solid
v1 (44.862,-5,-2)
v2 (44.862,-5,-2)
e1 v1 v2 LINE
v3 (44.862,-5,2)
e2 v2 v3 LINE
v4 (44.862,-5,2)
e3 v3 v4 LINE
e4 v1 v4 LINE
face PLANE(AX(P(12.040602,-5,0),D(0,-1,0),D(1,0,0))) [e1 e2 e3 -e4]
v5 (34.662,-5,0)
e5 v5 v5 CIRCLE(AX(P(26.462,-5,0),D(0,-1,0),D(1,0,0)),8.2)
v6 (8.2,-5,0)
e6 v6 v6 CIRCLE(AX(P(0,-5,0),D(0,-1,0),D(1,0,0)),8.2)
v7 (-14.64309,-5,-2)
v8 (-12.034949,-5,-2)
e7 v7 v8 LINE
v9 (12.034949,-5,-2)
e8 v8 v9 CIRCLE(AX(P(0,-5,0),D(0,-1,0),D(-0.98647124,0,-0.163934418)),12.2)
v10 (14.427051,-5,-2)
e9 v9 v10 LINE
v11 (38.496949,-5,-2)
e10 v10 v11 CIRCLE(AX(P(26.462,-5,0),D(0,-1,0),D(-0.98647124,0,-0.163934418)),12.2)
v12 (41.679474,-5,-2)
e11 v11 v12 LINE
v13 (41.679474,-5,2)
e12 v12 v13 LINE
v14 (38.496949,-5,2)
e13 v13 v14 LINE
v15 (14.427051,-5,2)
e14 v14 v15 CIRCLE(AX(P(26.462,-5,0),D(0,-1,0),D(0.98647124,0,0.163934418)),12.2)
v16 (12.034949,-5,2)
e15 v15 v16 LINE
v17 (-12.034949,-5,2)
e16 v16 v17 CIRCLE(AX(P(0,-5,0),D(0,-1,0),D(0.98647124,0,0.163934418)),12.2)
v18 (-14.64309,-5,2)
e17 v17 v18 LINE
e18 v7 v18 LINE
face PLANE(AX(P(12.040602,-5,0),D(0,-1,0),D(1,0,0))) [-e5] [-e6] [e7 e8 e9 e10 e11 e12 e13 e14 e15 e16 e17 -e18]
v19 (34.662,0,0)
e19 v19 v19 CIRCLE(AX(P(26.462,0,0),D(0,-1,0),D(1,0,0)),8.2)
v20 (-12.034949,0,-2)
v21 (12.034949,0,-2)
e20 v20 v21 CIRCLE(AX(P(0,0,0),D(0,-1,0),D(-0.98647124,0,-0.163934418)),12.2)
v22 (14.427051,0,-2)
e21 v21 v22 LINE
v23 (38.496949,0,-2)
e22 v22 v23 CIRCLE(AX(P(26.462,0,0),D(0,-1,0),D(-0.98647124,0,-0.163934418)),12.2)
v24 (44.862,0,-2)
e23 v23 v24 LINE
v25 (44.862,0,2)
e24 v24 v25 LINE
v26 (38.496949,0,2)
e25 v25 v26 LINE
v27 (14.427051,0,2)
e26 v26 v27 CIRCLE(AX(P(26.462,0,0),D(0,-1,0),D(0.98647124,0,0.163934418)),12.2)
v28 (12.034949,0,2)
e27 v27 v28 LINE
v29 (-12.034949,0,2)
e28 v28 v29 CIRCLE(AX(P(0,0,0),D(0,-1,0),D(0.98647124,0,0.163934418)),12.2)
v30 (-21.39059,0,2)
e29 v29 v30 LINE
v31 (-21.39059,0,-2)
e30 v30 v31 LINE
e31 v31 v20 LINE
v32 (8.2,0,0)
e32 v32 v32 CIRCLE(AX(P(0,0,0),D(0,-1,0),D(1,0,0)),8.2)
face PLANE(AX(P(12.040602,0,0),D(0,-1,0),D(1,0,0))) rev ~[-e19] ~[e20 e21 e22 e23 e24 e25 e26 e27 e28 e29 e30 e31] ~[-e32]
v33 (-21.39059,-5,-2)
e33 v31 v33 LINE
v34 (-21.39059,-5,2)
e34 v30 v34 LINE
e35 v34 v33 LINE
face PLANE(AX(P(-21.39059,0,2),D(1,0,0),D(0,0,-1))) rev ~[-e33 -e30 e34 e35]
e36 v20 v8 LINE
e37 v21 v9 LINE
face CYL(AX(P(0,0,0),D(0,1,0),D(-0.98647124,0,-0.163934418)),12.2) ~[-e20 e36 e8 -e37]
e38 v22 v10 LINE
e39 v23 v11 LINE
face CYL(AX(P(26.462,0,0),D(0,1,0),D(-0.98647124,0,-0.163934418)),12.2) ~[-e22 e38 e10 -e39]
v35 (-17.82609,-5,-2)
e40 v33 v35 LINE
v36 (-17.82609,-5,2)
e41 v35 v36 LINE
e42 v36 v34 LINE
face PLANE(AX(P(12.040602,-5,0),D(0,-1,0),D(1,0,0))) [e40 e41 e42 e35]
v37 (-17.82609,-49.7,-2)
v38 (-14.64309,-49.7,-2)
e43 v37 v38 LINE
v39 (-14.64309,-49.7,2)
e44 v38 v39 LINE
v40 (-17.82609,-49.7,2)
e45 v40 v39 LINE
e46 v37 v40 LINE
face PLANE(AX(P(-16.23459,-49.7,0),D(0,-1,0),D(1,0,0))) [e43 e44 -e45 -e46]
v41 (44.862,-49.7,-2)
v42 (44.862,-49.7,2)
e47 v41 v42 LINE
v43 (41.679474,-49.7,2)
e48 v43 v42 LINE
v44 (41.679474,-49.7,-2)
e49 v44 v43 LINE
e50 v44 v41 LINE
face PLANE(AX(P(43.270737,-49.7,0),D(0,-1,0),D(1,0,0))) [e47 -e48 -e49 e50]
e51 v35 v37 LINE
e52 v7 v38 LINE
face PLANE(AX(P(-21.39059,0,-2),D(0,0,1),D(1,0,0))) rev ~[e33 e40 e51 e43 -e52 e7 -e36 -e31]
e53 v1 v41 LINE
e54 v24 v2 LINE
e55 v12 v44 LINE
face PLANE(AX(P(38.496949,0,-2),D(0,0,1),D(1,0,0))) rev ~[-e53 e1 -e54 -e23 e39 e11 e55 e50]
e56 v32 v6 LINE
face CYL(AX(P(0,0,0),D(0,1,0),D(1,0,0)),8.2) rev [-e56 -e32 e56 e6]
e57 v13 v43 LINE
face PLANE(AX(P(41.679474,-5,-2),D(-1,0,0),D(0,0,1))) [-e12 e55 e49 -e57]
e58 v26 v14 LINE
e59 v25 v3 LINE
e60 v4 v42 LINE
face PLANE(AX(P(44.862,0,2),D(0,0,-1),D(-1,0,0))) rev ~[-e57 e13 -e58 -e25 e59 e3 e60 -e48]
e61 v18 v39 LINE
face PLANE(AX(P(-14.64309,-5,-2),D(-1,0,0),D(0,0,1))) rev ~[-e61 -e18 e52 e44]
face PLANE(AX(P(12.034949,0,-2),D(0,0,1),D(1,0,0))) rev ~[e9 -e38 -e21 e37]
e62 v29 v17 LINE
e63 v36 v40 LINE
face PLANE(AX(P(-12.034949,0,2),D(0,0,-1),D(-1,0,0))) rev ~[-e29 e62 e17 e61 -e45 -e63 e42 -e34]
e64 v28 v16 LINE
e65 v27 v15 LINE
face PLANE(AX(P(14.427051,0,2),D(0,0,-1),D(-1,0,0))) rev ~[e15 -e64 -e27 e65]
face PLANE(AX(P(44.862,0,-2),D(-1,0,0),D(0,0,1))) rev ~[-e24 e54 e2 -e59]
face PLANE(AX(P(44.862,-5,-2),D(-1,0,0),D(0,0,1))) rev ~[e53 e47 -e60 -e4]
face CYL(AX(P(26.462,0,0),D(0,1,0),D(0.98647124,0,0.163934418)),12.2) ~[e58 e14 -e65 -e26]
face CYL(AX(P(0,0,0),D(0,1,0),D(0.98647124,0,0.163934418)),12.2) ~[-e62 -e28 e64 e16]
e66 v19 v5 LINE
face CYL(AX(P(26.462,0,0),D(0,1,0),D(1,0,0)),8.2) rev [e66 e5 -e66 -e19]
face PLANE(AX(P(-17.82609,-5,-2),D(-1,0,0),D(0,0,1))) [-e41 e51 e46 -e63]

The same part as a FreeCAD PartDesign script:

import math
import FreeCAD as App
import Part
import Sketcher
Q = App.Units.Quantity

doc = App.newDocument("Part")
body = doc.addObject("PartDesign::Body", "Body")

# Sketch on XZ plane
sketch1 = body.newObject("Sketcher::SketchObject", "Sketch")
sketch1.AttachmentSupport = (doc.getObject("XZ_Plane"), [""])
sketch1.MapMode = "FlatFace"
sketch1.addGeometry([
    Part.LineSegment(App.Vector(-21.39059, -2, 0), App.Vector(-12.034949, -2, 0)),  # 0
    Part.ArcOfCircle(Part.Circle(App.Vector(0, 0, 0), App.Vector(0, 0, 1), 12.2), math.radians(-170.564662), math.radians(-9.435338)),  # 1
    Part.LineSegment(App.Vector(12.034949, -2, 0), App.Vector(14.427051, -2, 0)),  # 2
    Part.ArcOfCircle(Part.Circle(App.Vector(26.462, 0, 0), App.Vector(0, 0, 1), 12.2), math.radians(-170.564662), math.radians(-9.435338)),  # 3
    Part.LineSegment(App.Vector(38.496949, -2, 0), App.Vector(44.862, -2, 0)),  # 4
    Part.LineSegment(App.Vector(44.862, -2, 0), App.Vector(44.862, 2, 0)),  # 5
    Part.LineSegment(App.Vector(44.862, 2, 0), App.Vector(38.496949, 2, 0)),  # 6
    Part.ArcOfCircle(Part.Circle(App.Vector(26.462, 0, 0), App.Vector(0, 0, 1), 12.2), math.radians(9.435338), math.radians(170.564662)),  # 7
    Part.LineSegment(App.Vector(14.427051, 2, 0), App.Vector(12.034949, 2, 0)),  # 8
    Part.ArcOfCircle(Part.Circle(App.Vector(0, 0, 0), App.Vector(0, 0, 1), 12.2), math.radians(9.435338), math.radians(170.564662)),  # 9
    Part.LineSegment(App.Vector(-12.034949, 2, 0), App.Vector(-21.39059, 2, 0)),  # 10
    Part.LineSegment(App.Vector(-21.39059, 2, 0), App.Vector(-21.39059, -2, 0)),  # 11
    Part.Circle(App.Vector(0, 0, 0), App.Vector(0, 0, 1), 8.2),  # 12
    Part.Circle(App.Vector(26.462, 0, 0), App.Vector(0, 0, 1), 8.2),  # 13
], False)
sketch1.addConstraint([
    Sketcher.Constraint("Coincident", 0, 2, 1, 1),
    Sketcher.Constraint("Coincident", 1, 2, 2, 1),
    Sketcher.Constraint("Coincident", 2, 2, 3, 1),
    Sketcher.Constraint("Coincident", 3, 2, 4, 1),
    Sketcher.Constraint("Coincident", 4, 2, 5, 1),
    Sketcher.Constraint("Coincident", 5, 2, 6, 1),
    Sketcher.Constraint("Coincident", 6, 2, 7, 1),
    Sketcher.Constraint("Coincident", 7, 2, 8, 1),
    Sketcher.Constraint("Coincident", 8, 2, 9, 1),
    Sketcher.Constraint("Coincident", 9, 2, 10, 1),
    Sketcher.Constraint("Coincident", 10, 2, 11, 1),
    Sketcher.Constraint("Coincident", 11, 2, 0, 1),
    Sketcher.Constraint("Horizontal", 0),
    Sketcher.Constraint("Horizontal", 2),
    Sketcher.Constraint("Horizontal", 4),
    Sketcher.Constraint("Vertical", 5),
    Sketcher.Constraint("Horizontal", 6),
    Sketcher.Constraint("Horizontal", 8),
    Sketcher.Constraint("Horizontal", 10),
    Sketcher.Constraint("Vertical", 11),
    Sketcher.Constraint("Coincident", 1, 3, -1, 1),
    Sketcher.Constraint("Coincident", 9, 3, -1, 1),
    Sketcher.Constraint("Coincident", 12, 3, -1, 1),
    Sketcher.Constraint("Coincident", 7, 3, 3, 3),
    Sketcher.Constraint("Coincident", 13, 3, 3, 3),
    Sketcher.Constraint("Equal", 1, 3),
    Sketcher.Constraint("Equal", 3, 7),
    Sketcher.Constraint("Equal", 7, 9),
    Sketcher.Constraint("Equal", 12, 13),
    Sketcher.Constraint("Symmetric", 3, 2, 6, 2, -1),
    Sketcher.Constraint("Horizontal", 0, 2, 1, 2),
    Sketcher.Constraint("Horizontal", 2, 2, 3, 2),
    Sketcher.Constraint("Horizontal", 6, 2, 7, 2),
    Sketcher.Constraint("Horizontal", 8, 2, 9, 2),
    Sketcher.Constraint("Diameter", 12, Q("16.4 mm")),
    Sketcher.Constraint("Radius", 1, Q("12.2 mm")),
    Sketcher.Constraint("DistanceY", 5, 1, 5, 2, Q("4 mm")),
    Sketcher.Constraint("DistanceX", 3, 3, 4, 2, Q("18.4 mm")),
    Sketcher.Constraint("DistanceX", -1, 1, 3, 3, Q("26.462 mm")),
    Sketcher.Constraint("DistanceX", 0, 1, 0, 2, Q("9.355641 mm")),
])
pad1 = body.newObject("PartDesign::Pad", "Pad")
pad1.Profile = sketch1
pad1.Length = 5

# Sketch on XZ plane
sketch2 = body.newObject("Sketcher::SketchObject", "Sketch001")
sketch2.AttachmentSupport = (doc.getObject("XZ_Plane"), [""])
sketch2.MapMode = "FlatFace"
sketch2.AttachmentOffset = App.Placement(App.Vector(0, 0, 5), App.Rotation())
sketch2.addGeometry([
    Part.LineSegment(App.Vector(-17.82609, 2, 0), App.Vector(-17.82609, -2, 0)),  # 0
    Part.LineSegment(App.Vector(-17.82609, -2, 0), App.Vector(-14.64309, -2, 0)),  # 1
    Part.LineSegment(App.Vector(-14.64309, -2, 0), App.Vector(-14.64309, 2, 0)),  # 2
    Part.LineSegment(App.Vector(-14.64309, 2, 0), App.Vector(-17.82609, 2, 0)),  # 3
    Part.LineSegment(App.Vector(41.679474, 2, 0), App.Vector(41.679474, -2, 0)),  # 4
    Part.LineSegment(App.Vector(41.679474, -2, 0), App.Vector(44.862, -2, 0)),  # 5
    Part.LineSegment(App.Vector(44.862, -2, 0), App.Vector(44.862, 2, 0)),  # 6
    Part.LineSegment(App.Vector(44.862, 2, 0), App.Vector(41.679474, 2, 0)),  # 7
], False)
sketch2.addConstraint([
    Sketcher.Constraint("Coincident", 0, 2, 1, 1),
    Sketcher.Constraint("Coincident", 1, 2, 2, 1),
    Sketcher.Constraint("Coincident", 2, 2, 3, 1),
    Sketcher.Constraint("Coincident", 3, 2, 0, 1),
    Sketcher.Constraint("Coincident", 4, 2, 5, 1),
    Sketcher.Constraint("Coincident", 5, 2, 6, 1),
    Sketcher.Constraint("Coincident", 6, 2, 7, 1),
    Sketcher.Constraint("Coincident", 7, 2, 4, 1),
    Sketcher.Constraint("Vertical", 0),
    Sketcher.Constraint("Horizontal", 1),
    Sketcher.Constraint("Vertical", 2),
    Sketcher.Constraint("Horizontal", 3),
    Sketcher.Constraint("Vertical", 4),
    Sketcher.Constraint("Horizontal", 5),
    Sketcher.Constraint("Vertical", 6),
    Sketcher.Constraint("Horizontal", 7),
    Sketcher.Constraint("Horizontal", 1, 2, 4, 2),
    Sketcher.Constraint("Horizontal", 3, 2, 6, 2),
    Sketcher.Constraint("DistanceY", 0, 2, 0, 1, Q("4 mm")),
    Sketcher.Constraint("DistanceY", 0, 2, -1, 1, Q("2 mm")),
    Sketcher.Constraint("DistanceX", 1, 1, 1, 2, Q("3.183 mm")),
    Sketcher.Constraint("DistanceX", -1, 1, 5, 2, Q("44.862 mm")),
    Sketcher.Constraint("DistanceX", 5, 1, 5, 2, Q("3.182525 mm")),
    Sketcher.Constraint("DistanceX", 0, 2, -1, 1, Q("17.82609 mm")),
])
pad2 = body.newObject("PartDesign::Pad", "Pad001")
pad2.Profile = sketch2
pad2.Length = 44.7

doc.recompute()
